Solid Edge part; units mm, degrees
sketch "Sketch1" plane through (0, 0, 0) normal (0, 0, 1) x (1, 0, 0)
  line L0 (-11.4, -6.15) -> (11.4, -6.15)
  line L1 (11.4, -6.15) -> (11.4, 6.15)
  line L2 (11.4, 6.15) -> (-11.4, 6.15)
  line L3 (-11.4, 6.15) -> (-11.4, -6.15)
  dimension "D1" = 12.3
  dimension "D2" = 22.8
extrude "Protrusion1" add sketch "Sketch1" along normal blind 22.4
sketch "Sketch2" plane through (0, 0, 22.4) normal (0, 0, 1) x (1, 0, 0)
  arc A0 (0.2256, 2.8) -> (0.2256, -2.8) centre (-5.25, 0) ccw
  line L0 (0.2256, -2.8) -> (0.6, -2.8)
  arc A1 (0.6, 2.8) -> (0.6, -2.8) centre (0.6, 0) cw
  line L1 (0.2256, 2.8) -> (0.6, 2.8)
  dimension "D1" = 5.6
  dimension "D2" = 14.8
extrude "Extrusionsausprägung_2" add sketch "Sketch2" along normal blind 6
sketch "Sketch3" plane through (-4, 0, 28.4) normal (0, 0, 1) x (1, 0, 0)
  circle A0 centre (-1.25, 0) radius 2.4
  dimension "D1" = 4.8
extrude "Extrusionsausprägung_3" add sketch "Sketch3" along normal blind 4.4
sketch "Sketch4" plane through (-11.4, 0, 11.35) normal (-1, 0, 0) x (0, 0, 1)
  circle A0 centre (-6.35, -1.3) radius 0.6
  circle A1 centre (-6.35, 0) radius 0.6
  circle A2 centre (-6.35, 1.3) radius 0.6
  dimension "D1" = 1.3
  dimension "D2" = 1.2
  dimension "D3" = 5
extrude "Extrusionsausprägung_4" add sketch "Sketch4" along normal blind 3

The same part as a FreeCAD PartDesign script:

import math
import FreeCAD as App
import Part
import Sketcher

doc = App.newDocument("Part")
params = doc.addObject("Spreadsheet::Sheet", "Params")
for row, (alias, value) in enumerate([
    ("sketch1_height", "12.3 mm"),
    ("pad1_length", "22.4 mm"),
    ("sketch2_radius", "2.8 mm"),
    ("sketch2_radius2", "6.15 mm"),
    ("pad2_length", "6 mm"),
    ("sketch3_diameter", "4.8 mm"),
    ("pad3_length", "4.4 mm"),
    ("sketch4_diameter", "1.2 mm"),
    ("pad4_length", "3 mm"),
], start=1):
    params.set(f"A{row}", alias)
    params.set(f"B{row}", "=" + value)
    params.setAlias(f"B{row}", alias)

body = doc.addObject("PartDesign::Body", "Body")

# Sketch on XY plane
sketch1 = doc.addObject("Sketcher::SketchObject", "Sketch")
body.addObject(sketch1)
sketch1.AttachmentSupport = (doc.XY_Plane, [""])
sketch1.MapMode = "FlatFace"
sketch1.addGeometry([
    Part.LineSegment(App.Vector(-11, 6, 0), App.Vector(-11, -6, 0)),
    Part.LineSegment(App.Vector(-11, -6, 0), App.Vector(11, -6, 0)),
    Part.LineSegment(App.Vector(11, -6, 0), App.Vector(11, 6, 0)),
    Part.LineSegment(App.Vector(11, 6, 0), App.Vector(-11, 6, 0)),
], False)
sketch1.addConstraint([
    Sketcher.Constraint("Coincident", 0, 2, 1, 1),
    Sketcher.Constraint("Coincident", 1, 2, 2, 1),
    Sketcher.Constraint("Coincident", 2, 2, 3, 1),
    Sketcher.Constraint("Coincident", 3, 2, 0, 1),
    Sketcher.Constraint("Vertical", 0),
    Sketcher.Constraint("Horizontal", 1),
    Sketcher.Constraint("Vertical", 2),
    Sketcher.Constraint("Horizontal", 3),
    Sketcher.Constraint("Symmetric", 0, 2, 2, 2, -1, 1),
    Sketcher.Constraint("DistanceX", 0, 2, -1, 1, 11.4),
    Sketcher.Constraint("DistanceY", 0, 2, 0, 1, 12.3),
])
sketch1.setExpression("Constraints[10]", "Params.sketch1_height")
pad1 = doc.addObject("PartDesign::Pad", "Pad")
body.addObject(pad1)
pad1.Profile = sketch1
pad1.setExpression("Length", "Params.pad1_length")

# Sketch on XY plane
sketch2 = doc.addObject("Sketcher::SketchObject", "Sketch001")
body.addObject(sketch2)
sketch2.AttachmentSupport = (doc.XY_Plane, [""])
sketch2.MapMode = "FlatFace"
sketch2.AttachmentOffset = App.Placement(App.Vector(0, 0, 22.4), App.Rotation())
sketch2.addGeometry([
    Part.LineSegment(App.Vector(0.6, 2.8, 0), App.Vector(0.23, 2.8, 0)),
    Part.ArcOfCircle(Part.Circle(App.Vector(-5.25, 0, 0), App.Vector(0, 0, 1), 6.15), math.radians(27), math.radians(333)),
    Part.LineSegment(App.Vector(0.23, -2.8, 0), App.Vector(0.6, -2.8, 0)),
    Part.ArcOfCircle(Part.Circle(App.Vector(0.6, 0, 0), App.Vector(0, 0, 1), 2.8), math.radians(-90), math.radians(90)),
], False)
sketch2.addConstraint([
    Sketcher.Constraint("Coincident", 0, 2, 1, 1),
    Sketcher.Constraint("Coincident", 1, 2, 2, 1),
    Sketcher.Constraint("Tangent", 2, 2, 3, 1),
    Sketcher.Constraint("Tangent", 3, 2, 0, 1),
    Sketcher.Constraint("Horizontal", 0),
    Sketcher.Constraint("Horizontal", 2),
    Sketcher.Constraint("Symmetric", 0, 2, 1, 2, -1),
    Sketcher.Constraint("Radius", 3, 2.8),
    Sketcher.Constraint("Radius", 1, 6.15),
    Sketcher.Constraint("DistanceX", -1, 1, 3, 3, 0.6),
    Sketcher.Constraint("DistanceX", -1, 1, 0, 2, 0.2256),
])
sketch2.setExpression("Constraints[7]", "Params.sketch2_radius")
sketch2.setExpression("Constraints[8]", "Params.sketch2_radius2")
pad2 = doc.addObject("PartDesign::Pad", "Pad001")
body.addObject(pad2)
pad2.Profile = sketch2
pad2.setExpression("Length", "Params.pad2_length")

# Sketch on XY plane
sketch3 = doc.addObject("Sketcher::SketchObject", "Sketch002")
body.addObject(sketch3)
sketch3.AttachmentSupport = (doc.XY_Plane, [""])
sketch3.MapMode = "FlatFace"
sketch3.AttachmentOffset = App.Placement(App.Vector(0, 0, 28.4), App.Rotation())
sketch3.addGeometry(Part.Circle(App.Vector(-5.2, 0, 0), App.Vector(0, 0, 1), 2.4), False)
sketch3.addConstraint([
    Sketcher.Constraint("PointOnObject", 0, 3, -1),
    Sketcher.Constraint("Diameter", 0, 4.8),
    Sketcher.Constraint("DistanceX", 0, 3, -1, 1, 5.25),
])
sketch3.setExpression("Constraints[1]", "Params.sketch3_diameter")
pad3 = doc.addObject("PartDesign::Pad", "Pad002")
body.addObject(pad3)
pad3.Profile = sketch3
pad3.setExpression("Length", "Params.pad3_length")

# Sketch on YZ plane
sketch4 = doc.addObject("Sketcher::SketchObject", "Sketch003")
body.addObject(sketch4)
sketch4.AttachmentSupport = (doc.YZ_Plane, [""])
sketch4.MapMode = "FlatFace"
sketch4.AttachmentOffset = App.Placement(App.Vector(0, 0, -11.4), App.Rotation())
sketch4.addGeometry([
    Part.Circle(App.Vector(-1.3, 5, 0), App.Vector(0, 0, 1), 0.6),
    Part.Circle(App.Vector(0, 5, 0), App.Vector(0, 0, 1), 0.6),
    Part.Circle(App.Vector(1.3, 5, 0), App.Vector(0, 0, 1), 0.6),
], False)
sketch4.addConstraint([
    Sketcher.Constraint("Equal", 0, 1),
    Sketcher.Constraint("Equal", 1, 2),
    Sketcher.Constraint("Symmetric", 0, 3, 2, 3, -2),
    Sketcher.Constraint("PointOnObject", 1, 3, -2),
    Sketcher.Constraint("Horizontal", 0, 3, 1, 3),
    Sketcher.Constraint("Diameter", 0, 1.2),
    Sketcher.Constraint("DistanceY", -1, 1, 0, 3, 5.0),
    Sketcher.Constraint("DistanceX", 0, 3, -1, 1, 1.3),
])
sketch4.setExpression("Constraints[5]", "Params.sketch4_diameter")
pad4 = doc.addObject("PartDesign::Pad", "Pad003")
body.addObject(pad4)
pad4.Profile = sketch4
pad4.setExpression("Length", "Params.pad4_length")
pad4.Reversed = True

doc.recompute()
